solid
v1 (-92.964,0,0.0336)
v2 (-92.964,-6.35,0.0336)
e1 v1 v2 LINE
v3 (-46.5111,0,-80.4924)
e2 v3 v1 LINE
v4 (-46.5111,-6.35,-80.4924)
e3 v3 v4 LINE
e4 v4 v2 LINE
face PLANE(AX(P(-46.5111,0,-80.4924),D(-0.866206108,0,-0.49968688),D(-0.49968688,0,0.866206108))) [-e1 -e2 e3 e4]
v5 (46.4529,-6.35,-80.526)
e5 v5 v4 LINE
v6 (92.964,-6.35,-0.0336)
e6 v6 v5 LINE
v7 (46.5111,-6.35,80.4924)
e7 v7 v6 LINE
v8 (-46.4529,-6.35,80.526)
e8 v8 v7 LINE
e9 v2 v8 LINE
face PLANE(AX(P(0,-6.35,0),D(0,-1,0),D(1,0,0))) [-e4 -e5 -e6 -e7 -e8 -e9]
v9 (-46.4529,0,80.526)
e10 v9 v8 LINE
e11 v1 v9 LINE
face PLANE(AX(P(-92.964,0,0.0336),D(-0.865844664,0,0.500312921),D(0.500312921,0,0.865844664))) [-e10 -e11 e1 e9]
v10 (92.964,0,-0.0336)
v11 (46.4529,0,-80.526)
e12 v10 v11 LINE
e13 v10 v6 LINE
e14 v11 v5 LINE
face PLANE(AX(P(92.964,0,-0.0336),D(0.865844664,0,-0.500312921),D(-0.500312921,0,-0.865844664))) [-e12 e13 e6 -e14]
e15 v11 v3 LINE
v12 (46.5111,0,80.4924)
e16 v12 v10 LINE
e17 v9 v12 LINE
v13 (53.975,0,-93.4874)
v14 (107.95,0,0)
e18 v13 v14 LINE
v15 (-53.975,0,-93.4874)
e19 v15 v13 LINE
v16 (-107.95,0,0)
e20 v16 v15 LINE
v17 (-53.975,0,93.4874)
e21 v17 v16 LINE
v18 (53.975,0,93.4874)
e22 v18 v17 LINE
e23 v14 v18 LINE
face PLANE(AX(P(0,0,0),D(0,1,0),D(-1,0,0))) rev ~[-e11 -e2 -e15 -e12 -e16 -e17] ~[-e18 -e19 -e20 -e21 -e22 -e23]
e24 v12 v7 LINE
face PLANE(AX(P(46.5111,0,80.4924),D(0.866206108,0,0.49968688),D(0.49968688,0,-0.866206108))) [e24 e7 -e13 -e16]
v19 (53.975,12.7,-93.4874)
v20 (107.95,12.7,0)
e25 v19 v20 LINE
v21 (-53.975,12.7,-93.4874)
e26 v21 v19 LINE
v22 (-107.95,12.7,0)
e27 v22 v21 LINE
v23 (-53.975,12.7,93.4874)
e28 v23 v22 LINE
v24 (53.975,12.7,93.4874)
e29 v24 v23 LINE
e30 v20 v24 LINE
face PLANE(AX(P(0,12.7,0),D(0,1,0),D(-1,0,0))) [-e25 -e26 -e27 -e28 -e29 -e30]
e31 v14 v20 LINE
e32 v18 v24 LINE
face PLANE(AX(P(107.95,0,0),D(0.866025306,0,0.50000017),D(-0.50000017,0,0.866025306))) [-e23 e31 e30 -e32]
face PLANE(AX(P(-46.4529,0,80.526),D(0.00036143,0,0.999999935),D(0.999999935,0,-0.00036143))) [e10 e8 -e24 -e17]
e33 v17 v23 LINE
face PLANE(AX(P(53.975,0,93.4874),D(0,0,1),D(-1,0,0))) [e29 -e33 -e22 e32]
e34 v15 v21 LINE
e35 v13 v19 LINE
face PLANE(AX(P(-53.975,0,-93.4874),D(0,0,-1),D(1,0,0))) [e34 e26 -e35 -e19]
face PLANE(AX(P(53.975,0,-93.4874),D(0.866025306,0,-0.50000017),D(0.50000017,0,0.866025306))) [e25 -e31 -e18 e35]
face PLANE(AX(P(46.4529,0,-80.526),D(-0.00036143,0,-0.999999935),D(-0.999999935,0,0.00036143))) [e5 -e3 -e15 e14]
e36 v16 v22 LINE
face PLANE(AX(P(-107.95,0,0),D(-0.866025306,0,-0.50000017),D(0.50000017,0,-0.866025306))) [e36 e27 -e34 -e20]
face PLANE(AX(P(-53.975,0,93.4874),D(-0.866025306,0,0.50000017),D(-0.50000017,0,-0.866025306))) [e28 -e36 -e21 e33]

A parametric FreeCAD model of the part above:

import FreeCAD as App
import Part
import Sketcher
from FreeCAD import Vector
Q = App.Units.Quantity

doc = App.newDocument("Part")
body = doc.addObject("PartDesign::Body", "Body")

# Sketch on XZ plane
sketch1 = doc.addObject("Sketcher::SketchObject", "Sketch")
body.addObject(sketch1)
sketch1.AttachmentSupport = (doc.XZ_Plane, [""])
sketch1.MapMode = "FlatFace"
sketch1.addGeometry([
    Part.LineSegment(Vector(54, 93, 0), Vector(108, 0, 0)),  # 0
    Part.LineSegment(Vector(108, 0, 0), Vector(54, -93, 0)),  # 1
    Part.LineSegment(Vector(54, -93, 0), Vector(-54, -93, 0)),  # 2
    Part.LineSegment(Vector(-54, -93, 0), Vector(-108, 0, 0)),  # 3
    Part.LineSegment(Vector(-108, 0, 0), Vector(-54, 93, 0)),  # 4
    Part.LineSegment(Vector(-54, 93, 0), Vector(54, 93, 0)),  # 5
], False)
sketch1.addConstraint([
    Sketcher.Constraint("Coincident", 0, 2, 1, 1),
    Sketcher.Constraint("Coincident", 1, 2, 2, 1),
    Sketcher.Constraint("Coincident", 2, 2, 3, 1),
    Sketcher.Constraint("Coincident", 3, 2, 4, 1),
    Sketcher.Constraint("Coincident", 4, 2, 5, 1),
    Sketcher.Constraint("Coincident", 5, 2, 0, 1),
    Sketcher.Constraint("Horizontal", 2),
    Sketcher.Constraint("Horizontal", 5),
    Sketcher.Constraint("Symmetric", 0, 2, 3, 2, -1, 1),
    Sketcher.Constraint("Symmetric", 1, 2, 4, 2, -1, 1),
    Sketcher.Constraint("PointOnObject", 0, 2, -1),
    Sketcher.Constraint("Parallel", 0, 3),
    Sketcher.Constraint("Vertical", 2, 2, 4, 2),
    Sketcher.Constraint("DistanceX", 3, 2, 0, 2, Q("8.5 in")),
    Sketcher.Constraint("Angle", 0, Q("-60 deg")),
    Sketcher.Constraint("DistanceX", 2, 2, 2, 1, Q("4.25 in")),
])
pad1 = doc.addObject("PartDesign::Pad", "Pad")
body.addObject(pad1)
pad1.Profile = sketch1
pad1.Length = Q("0.5 in")
pad1.Reversed = True

# Sketch on XZ plane
sketch2 = doc.addObject("Sketcher::SketchObject", "Sketch001")
body.addObject(sketch2)
sketch2.AttachmentSupport = (doc.XZ_Plane, [""])
sketch2.MapMode = "FlatFace"
sketch2.addGeometry([
    Part.LineSegment(Vector(-46, 81, 0), Vector(-93, 0, 0)),  # 0
    Part.LineSegment(Vector(-93, 0, 0), Vector(-47, -80, 0)),  # 1
    Part.LineSegment(Vector(-47, -80, 0), Vector(46, -81, 0)),  # 2
    Part.LineSegment(Vector(46, -81, 0), Vector(93, 0, 0)),  # 3
    Part.LineSegment(Vector(93, 0, 0), Vector(47, 80, 0)),  # 4
    Part.LineSegment(Vector(47, 80, 0), Vector(-46, 81, 0)),  # 5
], False)
sketch2.addConstraint([
    Sketcher.Constraint("Coincident", 0, 2, 1, 1),
    Sketcher.Constraint("Coincident", 1, 2, 2, 1),
    Sketcher.Constraint("Coincident", 2, 2, 3, 1),
    Sketcher.Constraint("Coincident", 3, 2, 4, 1),
    Sketcher.Constraint("Coincident", 4, 2, 5, 1),
    Sketcher.Constraint("Coincident", 5, 2, 0, 1),
    Sketcher.Constraint("Symmetric", 0, 2, 3, 2, -1, 1),
    Sketcher.Constraint("Symmetric", 1, 2, 4, 2, -1, 1),
    Sketcher.Constraint("Symmetric", 2, 2, 5, 2, -1, 1),
    Sketcher.Constraint("Equal", 0, 1),
    Sketcher.Constraint("Equal", 1, 2),
    Sketcher.Constraint("Distance", 0, Q("3.66 in")),
    Sketcher.Constraint("DistanceX", 0, 2, -1, 1, Q("3.66 in")),
    Sketcher.Constraint("Angle", 0, Q("-120.0207 deg")),
    Sketcher.Constraint("Angle", 2, Q("-0.0207 deg")),
])
pad2 = doc.addObject("PartDesign::Pad", "Pad001")
body.addObject(pad2)
pad2.Profile = sketch2
pad2.Length = Q("0.25 in")

doc.recompute()
